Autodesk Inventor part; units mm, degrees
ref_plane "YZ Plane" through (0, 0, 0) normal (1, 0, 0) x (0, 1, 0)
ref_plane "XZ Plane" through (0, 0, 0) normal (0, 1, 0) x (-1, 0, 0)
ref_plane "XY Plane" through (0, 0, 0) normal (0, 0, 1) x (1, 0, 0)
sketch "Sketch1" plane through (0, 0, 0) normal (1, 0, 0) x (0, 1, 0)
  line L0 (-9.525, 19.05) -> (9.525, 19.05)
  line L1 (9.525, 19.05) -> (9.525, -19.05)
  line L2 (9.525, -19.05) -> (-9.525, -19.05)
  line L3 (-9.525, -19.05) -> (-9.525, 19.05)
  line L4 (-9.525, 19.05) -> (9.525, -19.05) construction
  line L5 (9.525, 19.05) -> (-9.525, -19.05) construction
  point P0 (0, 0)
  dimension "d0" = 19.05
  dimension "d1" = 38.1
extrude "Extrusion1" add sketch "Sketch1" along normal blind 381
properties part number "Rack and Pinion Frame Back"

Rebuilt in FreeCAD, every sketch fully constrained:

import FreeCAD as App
import Part
import Sketcher
from FreeCAD import Vector
Q = App.Units.Quantity

doc = App.newDocument("Part")
body = doc.addObject("PartDesign::Body", "Body")

# Sketch on YZ plane
sketch1 = body.newObject("Sketcher::SketchObject", "Sketch")
sketch1.AttachmentSupport = (doc.getObject("YZ_Plane"), [""])
sketch1.MapMode = "FlatFace"
sketch1.addGeometry([
    Part.LineSegment(Vector(10, 19, 0), Vector(-10, 19, 0)),
    Part.LineSegment(Vector(-10, 19, 0), Vector(-10, -19, 0)),
    Part.LineSegment(Vector(-10, -19, 0), Vector(10, -19, 0)),
    Part.LineSegment(Vector(10, -19, 0), Vector(10, 19, 0)),
], False)
sketch1.addConstraint([
    Sketcher.Constraint("Coincident", 0, 2, 1, 1),
    Sketcher.Constraint("Coincident", 1, 2, 2, 1),
    Sketcher.Constraint("Coincident", 2, 2, 3, 1),
    Sketcher.Constraint("Coincident", 3, 2, 0, 1),
    Sketcher.Constraint("Horizontal", 0),
    Sketcher.Constraint("Vertical", 1),
    Sketcher.Constraint("Horizontal", 2),
    Sketcher.Constraint("Vertical", 3),
    Sketcher.Constraint("Symmetric", 0, 2, 2, 2, -1, 1),
    Sketcher.Constraint("DistanceY", 1, 2, 1, 1, Q("1.5 in")),
    Sketcher.Constraint("DistanceX", 0, 2, 0, 1, Q("0.75 in")),
])
pad1 = body.newObject("PartDesign::Pad", "Pad")
pad1.Profile = sketch1
pad1.Length = Q("15 in")

doc.recompute()
